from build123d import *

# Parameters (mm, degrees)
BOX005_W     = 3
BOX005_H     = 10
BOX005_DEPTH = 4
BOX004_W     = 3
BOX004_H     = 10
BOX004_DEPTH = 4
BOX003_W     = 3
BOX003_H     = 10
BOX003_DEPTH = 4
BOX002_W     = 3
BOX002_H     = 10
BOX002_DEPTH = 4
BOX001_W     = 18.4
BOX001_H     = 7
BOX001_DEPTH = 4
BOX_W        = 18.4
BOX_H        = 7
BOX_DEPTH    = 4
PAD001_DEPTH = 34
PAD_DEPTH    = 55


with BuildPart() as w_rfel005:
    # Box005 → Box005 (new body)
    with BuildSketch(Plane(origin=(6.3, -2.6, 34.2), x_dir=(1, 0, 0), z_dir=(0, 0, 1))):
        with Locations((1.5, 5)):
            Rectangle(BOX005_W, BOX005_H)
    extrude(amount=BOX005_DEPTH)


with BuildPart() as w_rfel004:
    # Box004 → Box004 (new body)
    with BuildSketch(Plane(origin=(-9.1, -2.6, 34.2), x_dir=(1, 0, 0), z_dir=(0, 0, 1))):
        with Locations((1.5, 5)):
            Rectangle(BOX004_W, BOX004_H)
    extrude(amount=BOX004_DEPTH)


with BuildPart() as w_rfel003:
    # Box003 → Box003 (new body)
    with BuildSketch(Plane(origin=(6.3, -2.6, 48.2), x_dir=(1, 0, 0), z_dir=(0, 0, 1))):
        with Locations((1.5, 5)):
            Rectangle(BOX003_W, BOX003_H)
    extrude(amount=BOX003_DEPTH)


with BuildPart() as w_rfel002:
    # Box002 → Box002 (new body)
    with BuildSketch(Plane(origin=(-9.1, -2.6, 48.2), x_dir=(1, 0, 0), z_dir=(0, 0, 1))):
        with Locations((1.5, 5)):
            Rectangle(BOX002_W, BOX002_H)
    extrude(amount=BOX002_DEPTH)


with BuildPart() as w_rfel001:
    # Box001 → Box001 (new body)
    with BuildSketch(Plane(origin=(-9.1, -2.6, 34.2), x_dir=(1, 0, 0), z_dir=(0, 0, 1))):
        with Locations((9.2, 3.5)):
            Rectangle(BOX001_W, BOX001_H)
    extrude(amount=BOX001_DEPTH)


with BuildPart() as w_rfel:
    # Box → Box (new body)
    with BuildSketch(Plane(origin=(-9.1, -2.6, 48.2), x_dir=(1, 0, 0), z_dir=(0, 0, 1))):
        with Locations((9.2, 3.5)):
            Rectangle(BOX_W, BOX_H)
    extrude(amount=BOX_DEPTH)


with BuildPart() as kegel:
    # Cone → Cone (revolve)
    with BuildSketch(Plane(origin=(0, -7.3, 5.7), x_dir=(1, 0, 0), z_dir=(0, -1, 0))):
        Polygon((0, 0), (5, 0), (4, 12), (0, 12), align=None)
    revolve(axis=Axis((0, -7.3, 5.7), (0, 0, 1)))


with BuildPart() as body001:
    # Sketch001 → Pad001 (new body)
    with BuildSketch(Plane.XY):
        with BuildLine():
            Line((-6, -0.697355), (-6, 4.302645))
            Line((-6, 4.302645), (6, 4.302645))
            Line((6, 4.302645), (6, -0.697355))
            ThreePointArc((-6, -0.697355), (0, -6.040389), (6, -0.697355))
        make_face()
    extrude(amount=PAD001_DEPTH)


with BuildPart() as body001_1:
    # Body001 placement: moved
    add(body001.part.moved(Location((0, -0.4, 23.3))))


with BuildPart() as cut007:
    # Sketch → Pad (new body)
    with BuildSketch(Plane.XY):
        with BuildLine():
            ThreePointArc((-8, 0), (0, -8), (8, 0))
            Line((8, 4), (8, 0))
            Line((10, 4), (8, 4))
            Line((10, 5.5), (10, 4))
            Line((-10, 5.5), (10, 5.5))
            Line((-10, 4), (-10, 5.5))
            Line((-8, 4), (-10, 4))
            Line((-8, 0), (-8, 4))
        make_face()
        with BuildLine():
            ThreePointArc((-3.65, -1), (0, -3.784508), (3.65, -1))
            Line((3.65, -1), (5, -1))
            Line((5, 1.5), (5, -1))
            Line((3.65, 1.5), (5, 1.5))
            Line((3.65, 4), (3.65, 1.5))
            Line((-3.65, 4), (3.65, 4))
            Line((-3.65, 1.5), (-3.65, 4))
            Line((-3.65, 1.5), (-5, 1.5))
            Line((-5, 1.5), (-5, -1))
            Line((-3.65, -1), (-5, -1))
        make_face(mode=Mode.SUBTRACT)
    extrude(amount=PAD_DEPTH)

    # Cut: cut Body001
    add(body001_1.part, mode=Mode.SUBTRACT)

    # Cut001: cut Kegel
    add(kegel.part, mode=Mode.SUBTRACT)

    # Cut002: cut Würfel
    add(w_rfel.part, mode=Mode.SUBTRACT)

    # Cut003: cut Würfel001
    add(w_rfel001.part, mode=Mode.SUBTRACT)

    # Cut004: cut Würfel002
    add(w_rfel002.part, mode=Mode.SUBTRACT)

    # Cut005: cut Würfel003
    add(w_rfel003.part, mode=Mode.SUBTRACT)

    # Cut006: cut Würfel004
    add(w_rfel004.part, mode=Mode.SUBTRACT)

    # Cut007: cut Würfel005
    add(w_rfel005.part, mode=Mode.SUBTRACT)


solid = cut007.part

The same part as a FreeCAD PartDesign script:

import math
import FreeCAD as App
import Part
import Sketcher
Q = App.Units.Quantity

doc = App.newDocument("Part")
params = doc.addObject("Spreadsheet::Sheet", "Params")
for row, (alias, value) in enumerate([
    ("sketch1_width", "3 mm"),
    ("sketch1_height", "10 mm"),
    ("pad1_length", "4 mm"),
    ("sketch2_width", "3 mm"),
    ("sketch2_height", "10 mm"),
    ("pad2_length", "4 mm"),
    ("sketch3_width", "3 mm"),
    ("sketch3_height", "10 mm"),
    ("pad3_length", "4 mm"),
    ("sketch4_width", "3 mm"),
    ("sketch4_height", "10 mm"),
    ("pad4_length", "4 mm"),
    ("sketch5_height", "7 mm"),
    ("sketch5_width", "18.4 mm"),
    ("pad5_length", "4 mm"),
    ("sketch6_height", "7 mm"),
    ("sketch6_width", "18.4 mm"),
    ("pad6_length", "4 mm"),
    ("sketch7_width", "5 mm"),
    ("sketch7_width2", "4 mm"),
    ("sketch7_height", "12 mm"),
    ("revolution_angle", "360 deg"),
    ("sketch8_width", "12 mm"),
    ("sketch8_height", "5 mm"),
    ("pad7_length", "34 mm"),
    ("sketch9_radius", "8 mm"),
    ("sketch9_width", "2 mm"),
    ("sketch9_height", "4 mm"),
    ("sketch9_width2", "7.3 mm"),
    ("sketch9_height2", "1.5 mm"),
    ("pad8_length", "55 mm"),
], start=1):
    params.set(f"A{row}", alias)
    params.set(f"B{row}", "=" + value)
    params.setAlias(f"B{row}", alias)

body = doc.addObject("PartDesign::Body", "Body")

sketch1 = body.newObject("Sketcher::SketchObject", "Sketch")
sketch1.AttachmentSupport = (doc.getObject("XY_Plane"), [""])
sketch1.MapMode = "FlatFace"
sketch1.AttachmentOffset = App.Placement(App.Vector(0, 0, 34.2), App.Rotation())
sketch1.addGeometry([
    Part.LineSegment(App.Vector(6.3, 7.4, 0), App.Vector(6.3, -2.6, 0)),
    Part.LineSegment(App.Vector(6.3, -2.6, 0), App.Vector(9.3, -2.6, 0)),
    Part.LineSegment(App.Vector(9.3, -2.6, 0), App.Vector(9.3, 7.4, 0)),
    Part.LineSegment(App.Vector(9.3, 7.4, 0), App.Vector(6.3, 7.4, 0)),
], False)
sketch1.addConstraint([
    Sketcher.Constraint("Coincident", 0, 2, 1, 1),
    Sketcher.Constraint("Coincident", 1, 2, 2, 1),
    Sketcher.Constraint("Coincident", 2, 2, 3, 1),
    Sketcher.Constraint("Coincident", 3, 2, 0, 1),
    Sketcher.Constraint("Vertical", 0),
    Sketcher.Constraint("Horizontal", 1),
    Sketcher.Constraint("Vertical", 2),
    Sketcher.Constraint("Horizontal", 3),
    Sketcher.Constraint("DistanceX", 1, 1, 1, 2, Q("3 mm")),
    Sketcher.Constraint("DistanceY", 0, 2, 0, 1, Q("10 mm")),
    Sketcher.Constraint("DistanceX", -1, 1, 0, 2, Q("6.3 mm")),
    Sketcher.Constraint("DistanceY", 0, 2, -1, 1, Q("2.6 mm")),
])
sketch1.setExpression("Constraints[8]", "Params.sketch1_width")
sketch1.setExpression("Constraints[9]", "Params.sketch1_height")
pad1 = body.newObject("PartDesign::Pad", "Pad")
pad1.Profile = sketch1
pad1.setExpression("Length", "Params.pad1_length")
body2 = doc.addObject("PartDesign::Body", "Body001")

sketch2 = body2.newObject("Sketcher::SketchObject", "Sketch001")
sketch2.AttachmentSupport = (doc.getObject("XY_Plane001"), [""])
sketch2.MapMode = "FlatFace"
sketch2.AttachmentOffset = App.Placement(App.Vector(0, 0, 34.2), App.Rotation())
sketch2.addGeometry([
    Part.LineSegment(App.Vector(-9.1, 7.4, 0), App.Vector(-9.1, -2.6, 0)),
    Part.LineSegment(App.Vector(-9.1, -2.6, 0), App.Vector(-6.1, -2.6, 0)),
    Part.LineSegment(App.Vector(-6.1, -2.6, 0), App.Vector(-6.1, 7.4, 0)),
    Part.LineSegment(App.Vector(-6.1, 7.4, 0), App.Vector(-9.1, 7.4, 0)),
], False)
sketch2.addConstraint([
    Sketcher.Constraint("Coincident", 0, 2, 1, 1),
    Sketcher.Constraint("Coincident", 1, 2, 2, 1),
    Sketcher.Constraint("Coincident", 2, 2, 3, 1),
    Sketcher.Constraint("Coincident", 3, 2, 0, 1),
    Sketcher.Constraint("Vertical", 0),
    Sketcher.Constraint("Horizontal", 1),
    Sketcher.Constraint("Vertical", 2),
    Sketcher.Constraint("Horizontal", 3),
    Sketcher.Constraint("DistanceX", 1, 1, 1, 2, Q("3 mm")),
    Sketcher.Constraint("DistanceY", 0, 2, 0, 1, Q("10 mm")),
    Sketcher.Constraint("DistanceX", 0, 2, -1, 1, Q("9.1 mm")),
    Sketcher.Constraint("DistanceY", 0, 2, -1, 1, Q("2.6 mm")),
])
sketch2.setExpression("Constraints[8]", "Params.sketch2_width")
sketch2.setExpression("Constraints[9]", "Params.sketch2_height")
pad2 = body2.newObject("PartDesign::Pad", "Pad001")
pad2.Profile = sketch2
pad2.setExpression("Length", "Params.pad2_length")
body3 = doc.addObject("PartDesign::Body", "Body002")

sketch3 = body3.newObject("Sketcher::SketchObject", "Sketch002")
sketch3.AttachmentSupport = (doc.getObject("XY_Plane002"), [""])
sketch3.MapMode = "FlatFace"
sketch3.AttachmentOffset = App.Placement(App.Vector(0, 0, 48.2), App.Rotation())
sketch3.addGeometry([
    Part.LineSegment(App.Vector(6.3, 7.4, 0), App.Vector(6.3, -2.6, 0)),
    Part.LineSegment(App.Vector(6.3, -2.6, 0), App.Vector(9.3, -2.6, 0)),
    Part.LineSegment(App.Vector(9.3, -2.6, 0), App.Vector(9.3, 7.4, 0)),
    Part.LineSegment(App.Vector(9.3, 7.4, 0), App.Vector(6.3, 7.4, 0)),
], False)
sketch3.addConstraint([
    Sketcher.Constraint("Coincident", 0, 2, 1, 1),
    Sketcher.Constraint("Coincident", 1, 2, 2, 1),
    Sketcher.Constraint("Coincident", 2, 2, 3, 1),
    Sketcher.Constraint("Coincident", 3, 2, 0, 1),
    Sketcher.Constraint("Vertical", 0),
    Sketcher.Constraint("Horizontal", 1),
    Sketcher.Constraint("Vertical", 2),
    Sketcher.Constraint("Horizontal", 3),
    Sketcher.Constraint("DistanceX", 1, 1, 1, 2, Q("3 mm")),
    Sketcher.Constraint("DistanceY", 0, 2, 0, 1, Q("10 mm")),
    Sketcher.Constraint("DistanceX", -1, 1, 0, 2, Q("6.3 mm")),
    Sketcher.Constraint("DistanceY", 0, 2, -1, 1, Q("2.6 mm")),
])
sketch3.setExpression("Constraints[8]", "Params.sketch3_width")
sketch3.setExpression("Constraints[9]", "Params.sketch3_height")
pad3 = body3.newObject("PartDesign::Pad", "Pad002")
pad3.Profile = sketch3
pad3.setExpression("Length", "Params.pad3_length")
body4 = doc.addObject("PartDesign::Body", "Body003")

sketch4 = body4.newObject("Sketcher::SketchObject", "Sketch003")
sketch4.AttachmentSupport = (doc.getObject("XY_Plane003"), [""])
sketch4.MapMode = "FlatFace"
sketch4.AttachmentOffset = App.Placement(App.Vector(0, 0, 48.2), App.Rotation())
sketch4.addGeometry([
    Part.LineSegment(App.Vector(-9.1, 7.4, 0), App.Vector(-9.1, -2.6, 0)),
    Part.LineSegment(App.Vector(-9.1, -2.6, 0), App.Vector(-6.1, -2.6, 0)),
    Part.LineSegment(App.Vector(-6.1, -2.6, 0), App.Vector(-6.1, 7.4, 0)),
    Part.LineSegment(App.Vector(-6.1, 7.4, 0), App.Vector(-9.1, 7.4, 0)),
], False)
sketch4.addConstraint([
    Sketcher.Constraint("Coincident", 0, 2, 1, 1),
    Sketcher.Constraint("Coincident", 1, 2, 2, 1),
    Sketcher.Constraint("Coincident", 2, 2, 3, 1),
    Sketcher.Constraint("Coincident", 3, 2, 0, 1),
    Sketcher.Constraint("Vertical", 0),
    Sketcher.Constraint("Horizontal", 1),
    Sketcher.Constraint("Vertical", 2),
    Sketcher.Constraint("Horizontal", 3),
    Sketcher.Constraint("DistanceX", 1, 1, 1, 2, Q("3 mm")),
    Sketcher.Constraint("DistanceY", 0, 2, 0, 1, Q("10 mm")),
    Sketcher.Constraint("DistanceX", 0, 2, -1, 1, Q("9.1 mm")),
    Sketcher.Constraint("DistanceY", 0, 2, -1, 1, Q("2.6 mm")),
])
sketch4.setExpression("Constraints[8]", "Params.sketch4_width")
sketch4.setExpression("Constraints[9]", "Params.sketch4_height")
pad4 = body4.newObject("PartDesign::Pad", "Pad003")
pad4.Profile = sketch4
pad4.setExpression("Length", "Params.pad4_length")
body5 = doc.addObject("PartDesign::Body", "Body004")

sketch5 = body5.newObject("Sketcher::SketchObject", "Sketch004")
sketch5.AttachmentSupport = (doc.getObject("XY_Plane004"), [""])
sketch5.MapMode = "FlatFace"
sketch5.AttachmentOffset = App.Placement(App.Vector(0, 0, 34.2), App.Rotation())
sketch5.addGeometry([
    Part.LineSegment(App.Vector(-9, 4, 0), App.Vector(-9, -3, 0)),
    Part.LineSegment(App.Vector(-9, -3, 0), App.Vector(9, -3, 0)),
    Part.LineSegment(App.Vector(9, -3, 0), App.Vector(9, 4, 0)),
    Part.LineSegment(App.Vector(9, 4, 0), App.Vector(-9, 4, 0)),
], False)
sketch5.addConstraint([
    Sketcher.Constraint("Coincident", 0, 2, 1, 1),
    Sketcher.Constraint("Coincident", 1, 2, 2, 1),
    Sketcher.Constraint("Coincident", 2, 2, 3, 1),
    Sketcher.Constraint("Coincident", 3, 2, 0, 1),
    Sketcher.Constraint("Vertical", 0),
    Sketcher.Constraint("Horizontal", 1),
    Sketcher.Constraint("Vertical", 2),
    Sketcher.Constraint("Horizontal", 3),
    Sketcher.Constraint("DistanceY", 0, 2, 0, 1, Q("7 mm")),
    Sketcher.Constraint("DistanceX", 1, 1, 1, 2, Q("18.4 mm")),
    Sketcher.Constraint("DistanceX", 0, 2, -1, 1, Q("9.1 mm")),
    Sketcher.Constraint("DistanceY", 0, 2, -1, 1, Q("2.6 mm")),
])
sketch5.setExpression("Constraints[8]", "Params.sketch5_height")
sketch5.setExpression("Constraints[9]", "Params.sketch5_width")
pad5 = body5.newObject("PartDesign::Pad", "Pad004")
pad5.Profile = sketch5
pad5.setExpression("Length", "Params.pad5_length")
body6 = doc.addObject("PartDesign::Body", "Body005")

sketch6 = body6.newObject("Sketcher::SketchObject", "Sketch005")
sketch6.AttachmentSupport = (doc.getObject("XY_Plane005"), [""])
sketch6.MapMode = "FlatFace"
sketch6.AttachmentOffset = App.Placement(App.Vector(0, 0, 48.2), App.Rotation())
sketch6.addGeometry([
    Part.LineSegment(App.Vector(-9, 4, 0), App.Vector(-9, -3, 0)),
    Part.LineSegment(App.Vector(-9, -3, 0), App.Vector(9, -3, 0)),
    Part.LineSegment(App.Vector(9, -3, 0), App.Vector(9, 4, 0)),
    Part.LineSegment(App.Vector(9, 4, 0), App.Vector(-9, 4, 0)),
], False)
sketch6.addConstraint([
    Sketcher.Constraint("Coincident", 0, 2, 1, 1),
    Sketcher.Constraint("Coincident", 1, 2, 2, 1),
    Sketcher.Constraint("Coincident", 2, 2, 3, 1),
    Sketcher.Constraint("Coincident", 3, 2, 0, 1),
    Sketcher.Constraint("Vertical", 0),
    Sketcher.Constraint("Horizontal", 1),
    Sketcher.Constraint("Vertical", 2),
    Sketcher.Constraint("Horizontal", 3),
    Sketcher.Constraint("DistanceY", 0, 2, 0, 1, Q("7 mm")),
    Sketcher.Constraint("DistanceX", 1, 1, 1, 2, Q("18.4 mm")),
    Sketcher.Constraint("DistanceX", 0, 2, -1, 1, Q("9.1 mm")),
    Sketcher.Constraint("DistanceY", 0, 2, -1, 1, Q("2.6 mm")),
])
sketch6.setExpression("Constraints[8]", "Params.sketch6_height")
sketch6.setExpression("Constraints[9]", "Params.sketch6_width")
pad6 = body6.newObject("PartDesign::Pad", "Pad005")
pad6.Profile = sketch6
pad6.setExpression("Length", "Params.pad6_length")
body7 = doc.addObject("PartDesign::Body", "Body006")

sketch7 = body7.newObject("Sketcher::SketchObject", "Sketch006")
sketch7.AttachmentSupport = (doc.getObject("XZ_Plane006"), [""])
sketch7.MapMode = "FlatFace"
sketch7.AttachmentOffset = App.Placement(App.Vector(0, 0, 7.3), App.Rotation())
sketch7.addGeometry([
    Part.LineSegment(App.Vector(0, 5.7, 0), App.Vector(5, 5.7, 0)),
    Part.LineSegment(App.Vector(5, 5.7, 0), App.Vector(4, 17.7, 0)),
    Part.LineSegment(App.Vector(4, 17.7, 0), App.Vector(0, 17.7, 0)),
    Part.LineSegment(App.Vector(0, 17.7, 0), App.Vector(0, 5.7, 0)),
], False)
sketch7.addConstraint([
    Sketcher.Constraint("Coincident", 0, 2, 1, 1),
    Sketcher.Constraint("Coincident", 1, 2, 2, 1),
    Sketcher.Constraint("Coincident", 2, 2, 3, 1),
    Sketcher.Constraint("Coincident", 3, 2, 0, 1),
    Sketcher.Constraint("Horizontal", 0),
    Sketcher.Constraint("Horizontal", 2),
    Sketcher.Constraint("Vertical", 3),
    Sketcher.Constraint("PointOnObject", 2, 2, -2),
    Sketcher.Constraint("DistanceX", 0, 1, 0, 2, Q("5 mm")),
    Sketcher.Constraint("DistanceX", 2, 2, 2, 1, Q("4 mm")),
    Sketcher.Constraint("DistanceY", 3, 2, 3, 1, Q("12 mm")),
    Sketcher.Constraint("DistanceY", -1, 1, 0, 2, Q("5.7 mm")),
])
sketch7.setExpression("Constraints[8]", "Params.sketch7_width")
sketch7.setExpression("Constraints[9]", "Params.sketch7_width2")
sketch7.setExpression("Constraints[10]", "Params.sketch7_height")
revolution = body7.newObject("PartDesign::Revolution", "Revolution")
revolution.Profile = sketch7
revolution.ReferenceAxis = (sketch7, ["V_Axis"])
revolution.setExpression("Angle", "Params.revolution_angle")
body8 = doc.addObject("PartDesign::Body", "Body007")

sketch8 = body8.newObject("Sketcher::SketchObject", "Sketch007")
sketch8.AttachmentSupport = (doc.getObject("XY_Plane007"), [""])
sketch8.MapMode = "FlatFace"
sketch8.addGeometry([
    Part.LineSegment(App.Vector(-6, 4, 0), App.Vector(-6, -1, 0)),
    Part.ArcOfCircle(Part.Circle(App.Vector(0, 0, 0), App.Vector(0, 0, 1), 6), math.radians(-173), math.radians(-7)),
    Part.LineSegment(App.Vector(6, -1, 0), App.Vector(6, 4, 0)),
    Part.LineSegment(App.Vector(6, 4, 0), App.Vector(-6, 4, 0)),
], False)
sketch8.addConstraint([
    Sketcher.Constraint("Coincident", 0, 2, 1, 1),
    Sketcher.Constraint("Coincident", 1, 2, 2, 1),
    Sketcher.Constraint("Coincident", 2, 2, 3, 1),
    Sketcher.Constraint("Coincident", 3, 2, 0, 1),
    Sketcher.Constraint("Vertical", 0),
    Sketcher.Constraint("Vertical", 2),
    Sketcher.Constraint("Horizontal", 3),
    Sketcher.Constraint("Coincident", 1, 3, -1, 1),
    Sketcher.Constraint("Horizontal", 0, 2, 1, 2),
    Sketcher.Constraint("DistanceX", 3, 2, 3, 1, Q("12 mm")),
    Sketcher.Constraint("DistanceY", 0, 2, 0, 1, Q("5 mm")),
    Sketcher.Constraint("Radius", 1, Q("6.040389 mm")),
])
sketch8.setExpression("Constraints[9]", "Params.sketch8_width")
sketch8.setExpression("Constraints[10]", "Params.sketch8_height")
pad7 = body8.newObject("PartDesign::Pad", "Pad006")
pad7.Profile = sketch8
pad7.setExpression("Length", "Params.pad7_length")
body9 = doc.addObject("PartDesign::Body", "Body008")
doc.recompute()

body8.Placement = App.Placement(App.Vector(0, -0.4, 23.3), App.Rotation(App.Vector(0, 0, 1), 0))
boolean = body9.newObject("PartDesign::Boolean", "Boolean")
boolean.Type = "Fuse"
boolean.addObjects([body8])
body10 = doc.addObject("PartDesign::Body", "Body009")

sketch9 = body10.newObject("Sketcher::SketchObject", "Sketch008")
sketch9.AttachmentSupport = (doc.getObject("XY_Plane009"), [""])
sketch9.MapMode = "FlatFace"
sketch9.addGeometry([
    Part.ArcOfCircle(Part.Circle(App.Vector(0, 0, 0), App.Vector(0, 0, 1), 8), math.radians(180), math.radians(360)),
    Part.LineSegment(App.Vector(8, 0, 0), App.Vector(8, 4, 0)),
    Part.LineSegment(App.Vector(8, 4, 0), App.Vector(10, 4, 0)),
    Part.LineSegment(App.Vector(10, 4, 0), App.Vector(10, 5.5, 0)),
    Part.LineSegment(App.Vector(10, 5.5, 0), App.Vector(-10, 5.5, 0)),
    Part.LineSegment(App.Vector(-10, 5.5, 0), App.Vector(-10, 4, 0)),
    Part.LineSegment(App.Vector(-10, 4, 0), App.Vector(-8, 4, 0)),
    Part.LineSegment(App.Vector(-8, 4, 0), App.Vector(-8, 0, 0)),
    Part.ArcOfCircle(Part.Circle(App.Vector(0, 0, 0), App.Vector(0, 0, 1), 3.8), math.radians(-165), math.radians(-15)),
    Part.LineSegment(App.Vector(-3.6, -1, 0), App.Vector(-5, -1, 0)),
    Part.LineSegment(App.Vector(-5, -1, 0), App.Vector(-5, 1.5, 0)),
    Part.LineSegment(App.Vector(-5, 1.5, 0), App.Vector(-3.6, 1.5, 0)),
    Part.LineSegment(App.Vector(-3.6, 1.5, 0), App.Vector(-3.6, 4, 0)),
    Part.LineSegment(App.Vector(-3.6, 4, 0), App.Vector(3.6, 4, 0)),
    Part.LineSegment(App.Vector(3.6, 4, 0), App.Vector(3.6, 1.5, 0)),
    Part.LineSegment(App.Vector(3.6, 1.5, 0), App.Vector(5, 1.5, 0)),
    Part.LineSegment(App.Vector(5, 1.5, 0), App.Vector(5, -1, 0)),
    Part.LineSegment(App.Vector(5, -1, 0), App.Vector(3.6, -1, 0)),
], False)
sketch9.addConstraint([
    Sketcher.Constraint("Tangent", 0, 2, 1, 1),
    Sketcher.Constraint("Coincident", 1, 2, 2, 1),
    Sketcher.Constraint("Coincident", 2, 2, 3, 1),
    Sketcher.Constraint("Coincident", 3, 2, 4, 1),
    Sketcher.Constraint("Coincident", 4, 2, 5, 1),
    Sketcher.Constraint("Coincident", 5, 2, 6, 1),
    Sketcher.Constraint("Coincident", 6, 2, 7, 1),
    Sketcher.Constraint("Tangent", 7, 2, 0, 1),
    Sketcher.Constraint("Coincident", 8, 1, 9, 1),
    Sketcher.Constraint("Coincident", 9, 2, 10, 1),
    Sketcher.Constraint("Coincident", 10, 2, 11, 1),
    Sketcher.Constraint("Coincident", 11, 2, 12, 1),
    Sketcher.Constraint("Coincident", 12, 2, 13, 1),
    Sketcher.Constraint("Coincident", 13, 2, 14, 1),
    Sketcher.Constraint("Coincident", 14, 2, 15, 1),
    Sketcher.Constraint("Coincident", 15, 2, 16, 1),
    Sketcher.Constraint("Coincident", 16, 2, 17, 1),
    Sketcher.Constraint("Coincident", 17, 2, 8, 2),
    Sketcher.Constraint("Vertical", 1),
    Sketcher.Constraint("Horizontal", 2),
    Sketcher.Constraint("Vertical", 3),
    Sketcher.Constraint("Horizontal", 4),
    Sketcher.Constraint("Vertical", 5),
    Sketcher.Constraint("Horizontal", 6),
    Sketcher.Constraint("Vertical", 7),
    Sketcher.Constraint("Horizontal", 9),
    Sketcher.Constraint("Vertical", 10),
    Sketcher.Constraint("Horizontal", 11),
    Sketcher.Constraint("Vertical", 12),
    Sketcher.Constraint("Horizontal", 13),
    Sketcher.Constraint("Vertical", 14),
    Sketcher.Constraint("Horizontal", 15),
    Sketcher.Constraint("Vertical", 16),
    Sketcher.Constraint("Horizontal", 17),
    Sketcher.Constraint("Coincident", 0, 3, -1, 1),
    Sketcher.Constraint("Coincident", 8, 3, -1, 1),
    Sketcher.Constraint("Symmetric", 2, 2, 5, 2, -2),
    Sketcher.Constraint("Symmetric", 11, 2, 14, 2, -2),
    Sketcher.Constraint("Symmetric", 9, 2, 16, 2, -2),
    Sketcher.Constraint("Horizontal", 6, 2, 12, 2),
    Sketcher.Constraint("Vertical", 8, 1, 11, 2),
    Sketcher.Constraint("Equal", 10, 12),
    Sketcher.Constraint("Radius", 0, Q("8 mm")),
    Sketcher.Constraint("DistanceX", 2, 1, 2, 2, Q("2 mm")),
    Sketcher.Constraint("DistanceY", 1, 1, 1, 2, Q("4 mm")),
    Sketcher.Constraint("DistanceX", 13, 1, 13, 2, Q("7.3 mm")),
    Sketcher.Constraint("DistanceY", 3, 1, 3, 2, Q("1.5 mm")),
    Sketcher.Constraint("DistanceY", 10, 1, 10, 2, Q("2.5 mm")),
    Sketcher.Constraint("DistanceX", 9, 2, -1, 1, Q("5 mm")),
])
sketch9.setExpression("Constraints[42]", "Params.sketch9_radius")
sketch9.setExpression("Constraints[43]", "Params.sketch9_width")
sketch9.setExpression("Constraints[44]", "Params.sketch9_height")
sketch9.setExpression("Constraints[45]", "Params.sketch9_width2")
sketch9.setExpression("Constraints[46]", "Params.sketch9_height2")
pad8 = body10.newObject("PartDesign::Pad", "Pad007")
pad8.Profile = sketch9
pad8.setExpression("Length", "Params.pad8_length")
doc.recompute()

boolean2 = body10.newObject("PartDesign::Boolean", "Boolean001")
boolean2.Type = "Cut"
boolean2.addObjects([body9])
doc.recompute()

boolean3 = body10.newObject("PartDesign::Boolean", "Boolean002")
boolean3.Type = "Cut"
boolean3.addObjects([body7])
doc.recompute()

boolean4 = body10.newObject("PartDesign::Boolean", "Boolean003")
boolean4.Type = "Cut"
boolean4.addObjects([body6])
doc.recompute()

boolean5 = body10.newObject("PartDesign::Boolean", "Boolean004")
boolean5.Type = "Cut"
boolean5.addObjects([body5])
doc.recompute()

boolean6 = body10.newObject("PartDesign::Boolean", "Boolean005")
boolean6.Type = "Cut"
boolean6.addObjects([body4])
doc.recompute()

boolean7 = body10.newObject("PartDesign::Boolean", "Boolean006")
boolean7.Type = "Cut"
boolean7.addObjects([body3])
doc.recompute()

boolean8 = body10.newObject("PartDesign::Boolean", "Boolean007")
boolean8.Type = "Cut"
boolean8.addObjects([body2])
doc.recompute()

boolean9 = body10.newObject("PartDesign::Boolean", "Boolean008")
boolean9.Type = "Cut"
boolean9.addObjects([body])

doc.recompute()
